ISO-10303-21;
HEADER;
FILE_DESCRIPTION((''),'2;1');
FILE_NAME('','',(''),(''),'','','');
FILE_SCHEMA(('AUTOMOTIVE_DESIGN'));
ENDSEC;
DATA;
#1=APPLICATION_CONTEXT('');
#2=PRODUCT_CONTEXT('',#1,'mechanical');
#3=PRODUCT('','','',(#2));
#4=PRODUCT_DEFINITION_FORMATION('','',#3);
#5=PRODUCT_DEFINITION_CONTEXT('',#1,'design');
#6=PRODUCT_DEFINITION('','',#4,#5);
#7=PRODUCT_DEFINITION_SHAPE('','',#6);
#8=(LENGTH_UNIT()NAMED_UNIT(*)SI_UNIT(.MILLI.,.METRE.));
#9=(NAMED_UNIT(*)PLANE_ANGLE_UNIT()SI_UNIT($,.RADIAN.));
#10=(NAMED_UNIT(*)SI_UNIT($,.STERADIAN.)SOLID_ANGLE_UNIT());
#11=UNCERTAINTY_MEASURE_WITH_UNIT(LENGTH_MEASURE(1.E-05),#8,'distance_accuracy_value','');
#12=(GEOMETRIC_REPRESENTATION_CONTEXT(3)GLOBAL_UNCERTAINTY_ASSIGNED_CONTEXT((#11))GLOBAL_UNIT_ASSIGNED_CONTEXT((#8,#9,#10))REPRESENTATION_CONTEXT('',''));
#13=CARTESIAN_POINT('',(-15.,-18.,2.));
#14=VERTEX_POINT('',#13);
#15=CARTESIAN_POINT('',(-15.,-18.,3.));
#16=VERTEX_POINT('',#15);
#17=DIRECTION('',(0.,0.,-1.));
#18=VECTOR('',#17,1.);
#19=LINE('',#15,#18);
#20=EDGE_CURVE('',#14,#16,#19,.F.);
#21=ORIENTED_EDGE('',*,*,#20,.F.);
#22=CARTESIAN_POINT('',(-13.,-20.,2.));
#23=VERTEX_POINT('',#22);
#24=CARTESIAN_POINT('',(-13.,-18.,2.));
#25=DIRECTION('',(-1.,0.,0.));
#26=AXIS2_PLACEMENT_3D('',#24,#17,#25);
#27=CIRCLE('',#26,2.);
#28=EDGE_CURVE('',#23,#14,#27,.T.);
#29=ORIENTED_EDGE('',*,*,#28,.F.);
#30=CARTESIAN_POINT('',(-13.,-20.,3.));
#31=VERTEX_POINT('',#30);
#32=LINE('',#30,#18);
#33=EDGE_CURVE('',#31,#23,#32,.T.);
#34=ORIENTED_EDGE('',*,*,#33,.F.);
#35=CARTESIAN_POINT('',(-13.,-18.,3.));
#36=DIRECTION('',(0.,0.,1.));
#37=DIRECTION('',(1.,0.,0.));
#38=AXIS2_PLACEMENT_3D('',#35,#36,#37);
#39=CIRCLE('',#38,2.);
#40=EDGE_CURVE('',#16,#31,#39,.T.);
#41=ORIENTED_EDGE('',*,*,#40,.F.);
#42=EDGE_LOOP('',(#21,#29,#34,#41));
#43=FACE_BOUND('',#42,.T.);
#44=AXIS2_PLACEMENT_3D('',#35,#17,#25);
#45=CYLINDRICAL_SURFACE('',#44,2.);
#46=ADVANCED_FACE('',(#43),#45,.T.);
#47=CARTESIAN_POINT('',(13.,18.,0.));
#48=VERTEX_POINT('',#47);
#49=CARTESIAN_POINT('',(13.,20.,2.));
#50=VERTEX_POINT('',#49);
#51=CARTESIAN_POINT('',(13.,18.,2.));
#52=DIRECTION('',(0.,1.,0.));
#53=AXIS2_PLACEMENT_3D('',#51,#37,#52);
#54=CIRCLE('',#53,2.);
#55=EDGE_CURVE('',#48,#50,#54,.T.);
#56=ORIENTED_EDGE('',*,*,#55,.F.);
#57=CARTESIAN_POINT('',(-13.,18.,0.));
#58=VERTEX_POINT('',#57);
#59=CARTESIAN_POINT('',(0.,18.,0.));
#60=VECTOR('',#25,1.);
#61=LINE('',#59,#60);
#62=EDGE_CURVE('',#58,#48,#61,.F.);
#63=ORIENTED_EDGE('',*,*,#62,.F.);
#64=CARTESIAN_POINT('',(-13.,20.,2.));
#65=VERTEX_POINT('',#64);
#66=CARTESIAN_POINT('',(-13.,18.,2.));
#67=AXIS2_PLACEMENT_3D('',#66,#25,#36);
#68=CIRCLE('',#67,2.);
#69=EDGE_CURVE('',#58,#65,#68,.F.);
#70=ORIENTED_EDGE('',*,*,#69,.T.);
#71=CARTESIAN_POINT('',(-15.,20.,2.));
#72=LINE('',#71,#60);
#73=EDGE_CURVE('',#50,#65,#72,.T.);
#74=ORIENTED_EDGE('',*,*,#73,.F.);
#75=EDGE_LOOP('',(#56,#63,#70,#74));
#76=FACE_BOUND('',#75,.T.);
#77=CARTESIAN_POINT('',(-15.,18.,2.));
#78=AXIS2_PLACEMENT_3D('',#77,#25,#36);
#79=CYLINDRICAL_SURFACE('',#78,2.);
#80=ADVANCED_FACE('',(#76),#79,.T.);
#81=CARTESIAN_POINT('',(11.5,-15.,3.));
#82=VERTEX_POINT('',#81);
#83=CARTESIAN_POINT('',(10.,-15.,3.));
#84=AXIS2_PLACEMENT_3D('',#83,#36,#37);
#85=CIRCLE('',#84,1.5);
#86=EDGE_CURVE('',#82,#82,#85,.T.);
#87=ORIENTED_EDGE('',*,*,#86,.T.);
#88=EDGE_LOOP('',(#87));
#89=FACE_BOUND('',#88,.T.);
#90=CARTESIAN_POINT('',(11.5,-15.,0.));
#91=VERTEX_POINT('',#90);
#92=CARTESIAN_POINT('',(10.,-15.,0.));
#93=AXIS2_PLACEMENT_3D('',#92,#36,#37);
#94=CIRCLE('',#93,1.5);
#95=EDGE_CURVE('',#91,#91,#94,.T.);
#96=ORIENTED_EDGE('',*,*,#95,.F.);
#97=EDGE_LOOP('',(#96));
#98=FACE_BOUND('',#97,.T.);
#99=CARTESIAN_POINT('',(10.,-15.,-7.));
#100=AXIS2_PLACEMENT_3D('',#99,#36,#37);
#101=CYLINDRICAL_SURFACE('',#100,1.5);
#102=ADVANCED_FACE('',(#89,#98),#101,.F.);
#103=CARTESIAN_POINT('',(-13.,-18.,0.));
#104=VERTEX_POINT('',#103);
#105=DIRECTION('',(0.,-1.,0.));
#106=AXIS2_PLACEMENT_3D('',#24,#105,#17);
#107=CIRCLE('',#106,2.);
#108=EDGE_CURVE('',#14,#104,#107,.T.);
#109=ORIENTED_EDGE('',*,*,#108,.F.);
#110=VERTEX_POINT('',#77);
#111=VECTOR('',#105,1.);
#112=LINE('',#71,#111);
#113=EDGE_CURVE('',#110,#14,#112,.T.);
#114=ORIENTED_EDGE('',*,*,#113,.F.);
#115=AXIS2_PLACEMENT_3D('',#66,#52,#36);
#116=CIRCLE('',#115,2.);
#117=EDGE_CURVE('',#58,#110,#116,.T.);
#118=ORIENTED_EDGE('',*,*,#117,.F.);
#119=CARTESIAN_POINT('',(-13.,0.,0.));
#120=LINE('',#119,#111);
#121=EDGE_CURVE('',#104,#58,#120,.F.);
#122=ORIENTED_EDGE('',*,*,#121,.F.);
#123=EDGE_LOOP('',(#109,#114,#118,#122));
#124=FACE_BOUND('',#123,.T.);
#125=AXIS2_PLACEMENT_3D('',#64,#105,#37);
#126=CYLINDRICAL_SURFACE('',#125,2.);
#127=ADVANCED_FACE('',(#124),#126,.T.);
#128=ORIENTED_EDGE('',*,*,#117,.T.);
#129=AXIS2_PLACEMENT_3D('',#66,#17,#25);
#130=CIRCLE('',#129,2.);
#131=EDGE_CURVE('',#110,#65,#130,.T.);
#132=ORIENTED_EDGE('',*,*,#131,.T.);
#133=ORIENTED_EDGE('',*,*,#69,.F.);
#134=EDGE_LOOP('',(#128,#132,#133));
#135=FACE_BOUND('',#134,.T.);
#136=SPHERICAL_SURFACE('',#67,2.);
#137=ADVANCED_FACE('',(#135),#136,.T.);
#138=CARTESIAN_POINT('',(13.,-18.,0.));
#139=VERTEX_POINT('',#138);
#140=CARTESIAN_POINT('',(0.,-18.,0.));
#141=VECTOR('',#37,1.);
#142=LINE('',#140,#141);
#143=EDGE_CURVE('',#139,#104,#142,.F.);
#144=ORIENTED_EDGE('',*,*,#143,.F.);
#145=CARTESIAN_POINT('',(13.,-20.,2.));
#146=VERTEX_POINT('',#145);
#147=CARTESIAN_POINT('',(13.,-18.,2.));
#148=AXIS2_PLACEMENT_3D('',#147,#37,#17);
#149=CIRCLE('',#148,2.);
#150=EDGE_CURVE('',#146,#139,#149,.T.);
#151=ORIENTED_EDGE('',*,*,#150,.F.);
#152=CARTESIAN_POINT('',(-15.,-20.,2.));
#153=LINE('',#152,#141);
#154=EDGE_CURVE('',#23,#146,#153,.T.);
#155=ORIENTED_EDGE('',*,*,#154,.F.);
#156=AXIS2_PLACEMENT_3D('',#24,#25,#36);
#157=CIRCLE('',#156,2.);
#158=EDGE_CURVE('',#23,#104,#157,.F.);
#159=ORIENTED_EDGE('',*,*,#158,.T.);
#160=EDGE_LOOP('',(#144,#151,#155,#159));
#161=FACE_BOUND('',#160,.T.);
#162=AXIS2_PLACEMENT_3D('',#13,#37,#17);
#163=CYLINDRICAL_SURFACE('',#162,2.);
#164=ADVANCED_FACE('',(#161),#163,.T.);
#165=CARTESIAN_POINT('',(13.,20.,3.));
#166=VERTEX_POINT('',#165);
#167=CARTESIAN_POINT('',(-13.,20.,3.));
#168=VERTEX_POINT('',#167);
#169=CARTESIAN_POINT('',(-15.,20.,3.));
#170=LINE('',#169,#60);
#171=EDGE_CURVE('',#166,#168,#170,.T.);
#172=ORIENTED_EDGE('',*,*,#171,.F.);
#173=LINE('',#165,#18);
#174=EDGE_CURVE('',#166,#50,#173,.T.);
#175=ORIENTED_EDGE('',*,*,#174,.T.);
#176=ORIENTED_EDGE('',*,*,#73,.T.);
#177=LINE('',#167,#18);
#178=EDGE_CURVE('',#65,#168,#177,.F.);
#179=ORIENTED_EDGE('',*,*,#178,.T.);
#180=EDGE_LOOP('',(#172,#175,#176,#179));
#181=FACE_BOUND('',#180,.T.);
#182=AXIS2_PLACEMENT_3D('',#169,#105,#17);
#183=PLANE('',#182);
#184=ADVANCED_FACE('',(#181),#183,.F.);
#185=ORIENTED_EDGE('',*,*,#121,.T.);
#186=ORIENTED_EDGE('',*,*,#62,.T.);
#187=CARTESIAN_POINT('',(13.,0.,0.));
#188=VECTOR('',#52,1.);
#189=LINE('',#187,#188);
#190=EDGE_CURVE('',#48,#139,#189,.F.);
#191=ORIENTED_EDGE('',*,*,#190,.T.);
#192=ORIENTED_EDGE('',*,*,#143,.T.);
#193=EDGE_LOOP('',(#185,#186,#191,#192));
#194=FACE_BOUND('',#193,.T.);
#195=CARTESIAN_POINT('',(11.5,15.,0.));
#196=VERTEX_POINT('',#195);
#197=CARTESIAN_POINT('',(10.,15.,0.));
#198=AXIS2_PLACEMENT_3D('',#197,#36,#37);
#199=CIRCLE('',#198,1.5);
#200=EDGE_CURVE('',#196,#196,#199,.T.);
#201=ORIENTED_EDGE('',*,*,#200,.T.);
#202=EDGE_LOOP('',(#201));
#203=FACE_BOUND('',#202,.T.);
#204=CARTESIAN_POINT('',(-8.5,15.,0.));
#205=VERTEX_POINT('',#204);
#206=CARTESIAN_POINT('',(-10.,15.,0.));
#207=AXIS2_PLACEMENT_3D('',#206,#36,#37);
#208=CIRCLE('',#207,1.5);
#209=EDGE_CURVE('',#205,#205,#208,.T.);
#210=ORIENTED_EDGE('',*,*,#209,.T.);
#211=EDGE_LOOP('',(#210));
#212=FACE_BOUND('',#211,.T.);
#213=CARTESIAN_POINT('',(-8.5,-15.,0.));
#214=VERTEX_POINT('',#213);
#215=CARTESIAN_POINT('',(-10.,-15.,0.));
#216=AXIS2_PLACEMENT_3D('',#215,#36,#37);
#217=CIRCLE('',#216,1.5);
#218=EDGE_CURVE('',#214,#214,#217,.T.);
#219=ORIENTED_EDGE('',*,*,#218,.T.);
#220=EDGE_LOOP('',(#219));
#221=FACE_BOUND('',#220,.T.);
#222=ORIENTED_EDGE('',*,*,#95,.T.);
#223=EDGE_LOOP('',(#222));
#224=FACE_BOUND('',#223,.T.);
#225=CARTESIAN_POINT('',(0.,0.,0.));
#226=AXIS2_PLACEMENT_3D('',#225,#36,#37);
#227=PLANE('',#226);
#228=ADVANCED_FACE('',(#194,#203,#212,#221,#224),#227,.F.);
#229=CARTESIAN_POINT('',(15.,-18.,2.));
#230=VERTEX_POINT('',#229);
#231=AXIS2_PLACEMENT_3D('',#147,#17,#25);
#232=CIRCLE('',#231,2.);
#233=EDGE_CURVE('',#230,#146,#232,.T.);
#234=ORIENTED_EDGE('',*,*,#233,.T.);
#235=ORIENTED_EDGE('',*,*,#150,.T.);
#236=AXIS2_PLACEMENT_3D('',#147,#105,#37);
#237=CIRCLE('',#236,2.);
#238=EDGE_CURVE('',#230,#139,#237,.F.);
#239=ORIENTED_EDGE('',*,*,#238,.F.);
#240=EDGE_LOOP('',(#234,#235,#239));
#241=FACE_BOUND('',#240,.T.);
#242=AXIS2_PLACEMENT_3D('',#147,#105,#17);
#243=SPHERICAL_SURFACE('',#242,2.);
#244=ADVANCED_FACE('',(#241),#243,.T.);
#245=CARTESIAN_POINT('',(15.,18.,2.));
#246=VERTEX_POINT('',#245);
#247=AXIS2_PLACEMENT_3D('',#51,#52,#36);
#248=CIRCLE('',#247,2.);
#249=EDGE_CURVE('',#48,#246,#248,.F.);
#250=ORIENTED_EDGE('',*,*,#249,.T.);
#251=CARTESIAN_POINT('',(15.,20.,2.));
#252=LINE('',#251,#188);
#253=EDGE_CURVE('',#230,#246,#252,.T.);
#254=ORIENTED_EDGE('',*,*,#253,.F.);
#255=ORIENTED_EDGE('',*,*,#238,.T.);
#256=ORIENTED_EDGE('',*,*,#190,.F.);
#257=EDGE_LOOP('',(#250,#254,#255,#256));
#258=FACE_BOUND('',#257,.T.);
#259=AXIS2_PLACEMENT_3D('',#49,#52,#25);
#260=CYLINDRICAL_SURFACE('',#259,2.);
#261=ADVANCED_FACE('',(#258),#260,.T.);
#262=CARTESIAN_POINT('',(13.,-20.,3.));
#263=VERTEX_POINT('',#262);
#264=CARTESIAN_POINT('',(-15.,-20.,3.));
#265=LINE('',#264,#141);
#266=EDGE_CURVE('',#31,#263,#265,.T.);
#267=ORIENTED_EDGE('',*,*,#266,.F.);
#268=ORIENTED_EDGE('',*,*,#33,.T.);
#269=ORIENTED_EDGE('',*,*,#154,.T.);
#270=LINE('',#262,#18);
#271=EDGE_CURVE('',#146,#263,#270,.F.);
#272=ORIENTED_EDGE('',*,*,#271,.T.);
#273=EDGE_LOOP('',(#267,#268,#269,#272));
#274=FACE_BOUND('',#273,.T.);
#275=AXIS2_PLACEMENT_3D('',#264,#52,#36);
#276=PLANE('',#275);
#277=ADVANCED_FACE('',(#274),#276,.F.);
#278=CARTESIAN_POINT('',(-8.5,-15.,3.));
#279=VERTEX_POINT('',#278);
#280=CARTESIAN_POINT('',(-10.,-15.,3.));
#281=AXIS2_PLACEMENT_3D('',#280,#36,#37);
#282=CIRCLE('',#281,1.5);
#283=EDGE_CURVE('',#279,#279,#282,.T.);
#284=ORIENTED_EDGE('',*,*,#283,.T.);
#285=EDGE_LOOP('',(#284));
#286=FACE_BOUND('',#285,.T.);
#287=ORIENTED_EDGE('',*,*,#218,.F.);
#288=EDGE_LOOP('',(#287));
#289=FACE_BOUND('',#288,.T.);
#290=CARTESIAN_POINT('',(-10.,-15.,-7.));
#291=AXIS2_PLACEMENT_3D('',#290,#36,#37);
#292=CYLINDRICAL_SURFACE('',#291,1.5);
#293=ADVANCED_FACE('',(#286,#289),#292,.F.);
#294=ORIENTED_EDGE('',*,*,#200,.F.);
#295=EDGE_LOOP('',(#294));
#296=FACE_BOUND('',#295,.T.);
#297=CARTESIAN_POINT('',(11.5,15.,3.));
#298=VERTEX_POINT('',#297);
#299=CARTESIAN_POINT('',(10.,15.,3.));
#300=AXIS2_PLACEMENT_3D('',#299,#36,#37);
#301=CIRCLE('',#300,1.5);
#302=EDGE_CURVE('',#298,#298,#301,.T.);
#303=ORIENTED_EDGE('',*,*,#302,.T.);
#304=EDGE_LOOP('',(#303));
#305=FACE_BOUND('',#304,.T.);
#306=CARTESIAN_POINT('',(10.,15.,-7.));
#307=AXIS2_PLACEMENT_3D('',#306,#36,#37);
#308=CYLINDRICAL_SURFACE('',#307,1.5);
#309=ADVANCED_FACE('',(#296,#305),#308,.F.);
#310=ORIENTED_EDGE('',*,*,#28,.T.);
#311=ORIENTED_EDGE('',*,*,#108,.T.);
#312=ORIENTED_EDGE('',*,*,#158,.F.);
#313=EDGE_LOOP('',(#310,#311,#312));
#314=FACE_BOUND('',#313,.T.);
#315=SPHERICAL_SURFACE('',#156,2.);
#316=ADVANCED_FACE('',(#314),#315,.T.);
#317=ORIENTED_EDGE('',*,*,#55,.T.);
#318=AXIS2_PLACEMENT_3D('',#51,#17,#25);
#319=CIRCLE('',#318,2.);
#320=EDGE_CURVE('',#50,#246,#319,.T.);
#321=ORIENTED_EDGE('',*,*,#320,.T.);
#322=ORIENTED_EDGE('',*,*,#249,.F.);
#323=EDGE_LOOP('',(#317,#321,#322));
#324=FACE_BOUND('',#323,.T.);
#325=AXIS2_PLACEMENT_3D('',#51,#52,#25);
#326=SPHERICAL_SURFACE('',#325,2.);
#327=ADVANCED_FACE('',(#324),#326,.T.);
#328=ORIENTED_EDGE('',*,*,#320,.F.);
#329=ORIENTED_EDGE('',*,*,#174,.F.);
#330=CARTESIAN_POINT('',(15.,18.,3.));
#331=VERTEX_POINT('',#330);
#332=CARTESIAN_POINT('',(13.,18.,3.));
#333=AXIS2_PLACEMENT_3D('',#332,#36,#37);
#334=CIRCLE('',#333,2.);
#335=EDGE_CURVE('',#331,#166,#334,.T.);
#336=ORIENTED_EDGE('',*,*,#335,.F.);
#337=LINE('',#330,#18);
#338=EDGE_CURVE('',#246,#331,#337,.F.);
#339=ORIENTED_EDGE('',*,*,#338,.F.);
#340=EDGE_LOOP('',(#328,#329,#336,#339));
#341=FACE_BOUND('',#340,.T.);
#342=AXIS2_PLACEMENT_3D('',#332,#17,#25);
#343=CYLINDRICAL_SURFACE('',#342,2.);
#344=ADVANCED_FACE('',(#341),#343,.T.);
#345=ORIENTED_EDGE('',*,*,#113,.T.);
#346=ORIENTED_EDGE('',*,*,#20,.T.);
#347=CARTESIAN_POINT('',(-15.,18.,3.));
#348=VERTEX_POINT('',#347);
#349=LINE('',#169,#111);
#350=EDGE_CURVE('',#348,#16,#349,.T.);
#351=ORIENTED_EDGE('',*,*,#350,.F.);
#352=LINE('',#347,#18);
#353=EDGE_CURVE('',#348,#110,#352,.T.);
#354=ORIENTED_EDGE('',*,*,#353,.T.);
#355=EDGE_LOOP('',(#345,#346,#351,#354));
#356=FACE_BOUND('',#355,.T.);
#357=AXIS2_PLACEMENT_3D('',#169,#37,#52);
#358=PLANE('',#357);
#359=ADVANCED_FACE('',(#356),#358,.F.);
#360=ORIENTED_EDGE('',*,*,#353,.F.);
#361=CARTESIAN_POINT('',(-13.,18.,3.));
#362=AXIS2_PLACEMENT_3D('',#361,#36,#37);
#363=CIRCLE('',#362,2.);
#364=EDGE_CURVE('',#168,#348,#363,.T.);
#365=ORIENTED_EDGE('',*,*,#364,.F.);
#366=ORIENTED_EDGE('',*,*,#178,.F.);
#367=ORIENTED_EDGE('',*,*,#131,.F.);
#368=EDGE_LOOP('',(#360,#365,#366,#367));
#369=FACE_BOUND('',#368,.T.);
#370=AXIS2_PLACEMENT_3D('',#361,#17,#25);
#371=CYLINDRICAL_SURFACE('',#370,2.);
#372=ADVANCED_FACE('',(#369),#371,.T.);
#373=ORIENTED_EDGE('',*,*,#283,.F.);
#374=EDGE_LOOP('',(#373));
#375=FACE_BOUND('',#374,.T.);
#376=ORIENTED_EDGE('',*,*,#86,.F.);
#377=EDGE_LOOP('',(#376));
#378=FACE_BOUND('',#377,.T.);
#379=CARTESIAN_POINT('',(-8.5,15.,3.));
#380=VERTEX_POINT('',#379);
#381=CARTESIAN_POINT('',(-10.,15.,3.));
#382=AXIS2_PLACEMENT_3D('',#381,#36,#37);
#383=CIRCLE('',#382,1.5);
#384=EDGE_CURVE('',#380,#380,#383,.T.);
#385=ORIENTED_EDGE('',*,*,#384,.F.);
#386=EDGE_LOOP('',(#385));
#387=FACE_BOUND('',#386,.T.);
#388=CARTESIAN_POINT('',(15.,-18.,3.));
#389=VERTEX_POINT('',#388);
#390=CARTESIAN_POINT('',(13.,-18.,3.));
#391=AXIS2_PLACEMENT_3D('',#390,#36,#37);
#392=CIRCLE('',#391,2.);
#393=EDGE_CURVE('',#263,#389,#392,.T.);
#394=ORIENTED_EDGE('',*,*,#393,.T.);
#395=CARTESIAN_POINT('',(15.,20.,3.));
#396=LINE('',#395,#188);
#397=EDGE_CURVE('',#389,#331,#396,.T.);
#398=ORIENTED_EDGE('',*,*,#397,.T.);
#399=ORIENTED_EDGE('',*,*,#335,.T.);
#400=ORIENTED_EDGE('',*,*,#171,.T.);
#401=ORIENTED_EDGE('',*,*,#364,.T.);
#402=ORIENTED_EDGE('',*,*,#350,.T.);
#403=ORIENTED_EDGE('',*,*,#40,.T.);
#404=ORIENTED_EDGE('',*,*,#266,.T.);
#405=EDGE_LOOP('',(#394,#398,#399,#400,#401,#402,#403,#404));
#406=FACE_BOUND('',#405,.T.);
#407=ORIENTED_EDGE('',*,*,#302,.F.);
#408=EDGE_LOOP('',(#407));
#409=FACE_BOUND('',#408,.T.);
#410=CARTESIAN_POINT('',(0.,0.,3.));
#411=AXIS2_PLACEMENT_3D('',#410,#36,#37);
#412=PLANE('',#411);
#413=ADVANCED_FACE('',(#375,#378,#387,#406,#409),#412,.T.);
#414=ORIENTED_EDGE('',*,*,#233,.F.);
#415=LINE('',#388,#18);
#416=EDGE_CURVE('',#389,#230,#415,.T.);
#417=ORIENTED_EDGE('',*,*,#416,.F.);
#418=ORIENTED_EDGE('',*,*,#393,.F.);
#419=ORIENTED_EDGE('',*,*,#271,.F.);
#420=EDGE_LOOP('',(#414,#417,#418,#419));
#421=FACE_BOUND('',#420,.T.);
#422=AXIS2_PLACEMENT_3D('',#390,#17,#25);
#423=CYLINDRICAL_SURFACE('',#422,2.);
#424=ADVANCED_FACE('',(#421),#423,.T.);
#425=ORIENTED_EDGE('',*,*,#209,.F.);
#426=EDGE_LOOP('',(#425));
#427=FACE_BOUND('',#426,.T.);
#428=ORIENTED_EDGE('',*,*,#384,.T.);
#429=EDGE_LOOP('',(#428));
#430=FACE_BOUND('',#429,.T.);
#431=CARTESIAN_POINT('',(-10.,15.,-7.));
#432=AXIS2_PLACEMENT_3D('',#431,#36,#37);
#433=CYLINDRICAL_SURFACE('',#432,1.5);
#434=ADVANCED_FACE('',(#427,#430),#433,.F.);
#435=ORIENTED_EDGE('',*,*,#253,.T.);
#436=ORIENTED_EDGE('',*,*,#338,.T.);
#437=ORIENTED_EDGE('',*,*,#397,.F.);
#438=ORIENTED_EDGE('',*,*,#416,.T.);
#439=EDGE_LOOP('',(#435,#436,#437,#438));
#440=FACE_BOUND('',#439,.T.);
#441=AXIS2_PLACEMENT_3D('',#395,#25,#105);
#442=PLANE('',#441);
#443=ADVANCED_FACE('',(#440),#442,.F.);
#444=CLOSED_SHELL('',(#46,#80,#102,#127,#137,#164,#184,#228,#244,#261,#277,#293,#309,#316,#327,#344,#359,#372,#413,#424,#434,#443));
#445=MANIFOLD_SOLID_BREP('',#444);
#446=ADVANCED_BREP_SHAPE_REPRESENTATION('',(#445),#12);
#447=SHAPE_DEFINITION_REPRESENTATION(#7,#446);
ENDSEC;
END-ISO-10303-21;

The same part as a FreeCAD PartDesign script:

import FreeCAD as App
import Part
import Sketcher

V = App.Vector
Q = App.Units.Quantity


def edges_at(feature, points):
    """Names of the edges that pass closest to the given points."""
    edges = feature.Shape.Edges
    near = lambda p: min(range(len(edges)), key=lambda i: edges[i].distToShape(Part.Vertex(*p))[0])
    return sorted({f"Edge{near(p) + 1}" for p in points})

doc = App.newDocument("Part")
body = doc.addObject("PartDesign::Body", "Body")

sketch1 = doc.addObject("Sketcher::SketchObject", "Sketch")
body.addObject(sketch1)
sketch1.AttachmentSupport = (doc.XY_Plane, [""])
sketch1.MapMode = "FlatFace"
sketch1.addGeometry([
    Part.LineSegment(V(-15, 20, 0), V(-15, -20, 0)),
    Part.LineSegment(V(-15, -20, 0), V(15, -20, 0)),
    Part.LineSegment(V(15, -20, 0), V(15, 20, 0)),
    Part.LineSegment(V(15, 20, 0), V(-15, 20, 0)),
], False)
sketch1.addConstraint([
    Sketcher.Constraint("Coincident", 0, 2, 1, 1),
    Sketcher.Constraint("Coincident", 1, 2, 2, 1),
    Sketcher.Constraint("Coincident", 2, 2, 3, 1),
    Sketcher.Constraint("Coincident", 3, 2, 0, 1),
    Sketcher.Constraint("Vertical", 0),
    Sketcher.Constraint("Horizontal", 1),
    Sketcher.Constraint("Vertical", 2),
    Sketcher.Constraint("Horizontal", 3),
    Sketcher.Constraint("Symmetric", 0, 2, 2, 2, -1, 1),
    Sketcher.Constraint("DistanceX", 1, 1, 1, 2, Q("30 mm")),
    Sketcher.Constraint("DistanceY", 0, 2, 0, 1, Q("40 mm")),
])
pad1 = doc.addObject("PartDesign::Pad", "Pad")
body.addObject(pad1)
pad1.Profile = sketch1
pad1.Length = 3

sketch2 = doc.addObject("Sketcher::SketchObject", "Sketch001")
body.addObject(sketch2)
sketch2.AttachmentSupport = (doc.XY_Plane, [""])
sketch2.MapMode = "FlatFace"
sketch2.AttachmentOffset = App.Placement(V(0, 0, 3), App.Rotation())
sketch2.addGeometry([
    Part.Circle(V(10, 15, 0), V(0, 0, 1), 1.5),
    Part.Circle(V(-10, 15, 0), V(0, 0, 1), 1.5),
    Part.Circle(V(10, -15, 0), V(0, 0, 1), 1.5),
    Part.Circle(V(-10, -15, 0), V(0, 0, 1), 1.5),
], False)
sketch2.addConstraint([
    Sketcher.Constraint("Equal", 0, 1),
    Sketcher.Constraint("Equal", 1, 2),
    Sketcher.Constraint("Equal", 2, 3),
    Sketcher.Constraint("Symmetric", 1, 3, 2, 3, -1, 1),
    Sketcher.Constraint("Symmetric", 0, 3, 3, 3, -1, 1),
    Sketcher.Constraint("Symmetric", 0, 3, 1, 3, -2),
    Sketcher.Constraint("Diameter", 0, Q("3 mm")),
    Sketcher.Constraint("DistanceX", -1, 1, 0, 3, Q("10 mm")),
    Sketcher.Constraint("DistanceY", -1, 1, 0, 3, Q("15 mm")),
])
pocket1 = doc.addObject("PartDesign::Pocket", "Pocket")
body.addObject(pocket1)
pocket1.Profile = sketch2
pocket1.Length = 10
doc.recompute()

fillet = doc.addObject("PartDesign::Fillet", "Fillet")
body.addObject(fillet)
fillet.Base = (pocket1, edges_at(pocket1, [
    (0, -20, 0),
    (-15, 0, 0),
    (0, 20, 0),
    (15, 0, 0),
    (15, -20, 1.5),
    (-15, -20, 1.5),
    (-15, 20, 1.5),
    (15, 20, 1.5),
]))
fillet.Radius = 2

doc.recompute()
